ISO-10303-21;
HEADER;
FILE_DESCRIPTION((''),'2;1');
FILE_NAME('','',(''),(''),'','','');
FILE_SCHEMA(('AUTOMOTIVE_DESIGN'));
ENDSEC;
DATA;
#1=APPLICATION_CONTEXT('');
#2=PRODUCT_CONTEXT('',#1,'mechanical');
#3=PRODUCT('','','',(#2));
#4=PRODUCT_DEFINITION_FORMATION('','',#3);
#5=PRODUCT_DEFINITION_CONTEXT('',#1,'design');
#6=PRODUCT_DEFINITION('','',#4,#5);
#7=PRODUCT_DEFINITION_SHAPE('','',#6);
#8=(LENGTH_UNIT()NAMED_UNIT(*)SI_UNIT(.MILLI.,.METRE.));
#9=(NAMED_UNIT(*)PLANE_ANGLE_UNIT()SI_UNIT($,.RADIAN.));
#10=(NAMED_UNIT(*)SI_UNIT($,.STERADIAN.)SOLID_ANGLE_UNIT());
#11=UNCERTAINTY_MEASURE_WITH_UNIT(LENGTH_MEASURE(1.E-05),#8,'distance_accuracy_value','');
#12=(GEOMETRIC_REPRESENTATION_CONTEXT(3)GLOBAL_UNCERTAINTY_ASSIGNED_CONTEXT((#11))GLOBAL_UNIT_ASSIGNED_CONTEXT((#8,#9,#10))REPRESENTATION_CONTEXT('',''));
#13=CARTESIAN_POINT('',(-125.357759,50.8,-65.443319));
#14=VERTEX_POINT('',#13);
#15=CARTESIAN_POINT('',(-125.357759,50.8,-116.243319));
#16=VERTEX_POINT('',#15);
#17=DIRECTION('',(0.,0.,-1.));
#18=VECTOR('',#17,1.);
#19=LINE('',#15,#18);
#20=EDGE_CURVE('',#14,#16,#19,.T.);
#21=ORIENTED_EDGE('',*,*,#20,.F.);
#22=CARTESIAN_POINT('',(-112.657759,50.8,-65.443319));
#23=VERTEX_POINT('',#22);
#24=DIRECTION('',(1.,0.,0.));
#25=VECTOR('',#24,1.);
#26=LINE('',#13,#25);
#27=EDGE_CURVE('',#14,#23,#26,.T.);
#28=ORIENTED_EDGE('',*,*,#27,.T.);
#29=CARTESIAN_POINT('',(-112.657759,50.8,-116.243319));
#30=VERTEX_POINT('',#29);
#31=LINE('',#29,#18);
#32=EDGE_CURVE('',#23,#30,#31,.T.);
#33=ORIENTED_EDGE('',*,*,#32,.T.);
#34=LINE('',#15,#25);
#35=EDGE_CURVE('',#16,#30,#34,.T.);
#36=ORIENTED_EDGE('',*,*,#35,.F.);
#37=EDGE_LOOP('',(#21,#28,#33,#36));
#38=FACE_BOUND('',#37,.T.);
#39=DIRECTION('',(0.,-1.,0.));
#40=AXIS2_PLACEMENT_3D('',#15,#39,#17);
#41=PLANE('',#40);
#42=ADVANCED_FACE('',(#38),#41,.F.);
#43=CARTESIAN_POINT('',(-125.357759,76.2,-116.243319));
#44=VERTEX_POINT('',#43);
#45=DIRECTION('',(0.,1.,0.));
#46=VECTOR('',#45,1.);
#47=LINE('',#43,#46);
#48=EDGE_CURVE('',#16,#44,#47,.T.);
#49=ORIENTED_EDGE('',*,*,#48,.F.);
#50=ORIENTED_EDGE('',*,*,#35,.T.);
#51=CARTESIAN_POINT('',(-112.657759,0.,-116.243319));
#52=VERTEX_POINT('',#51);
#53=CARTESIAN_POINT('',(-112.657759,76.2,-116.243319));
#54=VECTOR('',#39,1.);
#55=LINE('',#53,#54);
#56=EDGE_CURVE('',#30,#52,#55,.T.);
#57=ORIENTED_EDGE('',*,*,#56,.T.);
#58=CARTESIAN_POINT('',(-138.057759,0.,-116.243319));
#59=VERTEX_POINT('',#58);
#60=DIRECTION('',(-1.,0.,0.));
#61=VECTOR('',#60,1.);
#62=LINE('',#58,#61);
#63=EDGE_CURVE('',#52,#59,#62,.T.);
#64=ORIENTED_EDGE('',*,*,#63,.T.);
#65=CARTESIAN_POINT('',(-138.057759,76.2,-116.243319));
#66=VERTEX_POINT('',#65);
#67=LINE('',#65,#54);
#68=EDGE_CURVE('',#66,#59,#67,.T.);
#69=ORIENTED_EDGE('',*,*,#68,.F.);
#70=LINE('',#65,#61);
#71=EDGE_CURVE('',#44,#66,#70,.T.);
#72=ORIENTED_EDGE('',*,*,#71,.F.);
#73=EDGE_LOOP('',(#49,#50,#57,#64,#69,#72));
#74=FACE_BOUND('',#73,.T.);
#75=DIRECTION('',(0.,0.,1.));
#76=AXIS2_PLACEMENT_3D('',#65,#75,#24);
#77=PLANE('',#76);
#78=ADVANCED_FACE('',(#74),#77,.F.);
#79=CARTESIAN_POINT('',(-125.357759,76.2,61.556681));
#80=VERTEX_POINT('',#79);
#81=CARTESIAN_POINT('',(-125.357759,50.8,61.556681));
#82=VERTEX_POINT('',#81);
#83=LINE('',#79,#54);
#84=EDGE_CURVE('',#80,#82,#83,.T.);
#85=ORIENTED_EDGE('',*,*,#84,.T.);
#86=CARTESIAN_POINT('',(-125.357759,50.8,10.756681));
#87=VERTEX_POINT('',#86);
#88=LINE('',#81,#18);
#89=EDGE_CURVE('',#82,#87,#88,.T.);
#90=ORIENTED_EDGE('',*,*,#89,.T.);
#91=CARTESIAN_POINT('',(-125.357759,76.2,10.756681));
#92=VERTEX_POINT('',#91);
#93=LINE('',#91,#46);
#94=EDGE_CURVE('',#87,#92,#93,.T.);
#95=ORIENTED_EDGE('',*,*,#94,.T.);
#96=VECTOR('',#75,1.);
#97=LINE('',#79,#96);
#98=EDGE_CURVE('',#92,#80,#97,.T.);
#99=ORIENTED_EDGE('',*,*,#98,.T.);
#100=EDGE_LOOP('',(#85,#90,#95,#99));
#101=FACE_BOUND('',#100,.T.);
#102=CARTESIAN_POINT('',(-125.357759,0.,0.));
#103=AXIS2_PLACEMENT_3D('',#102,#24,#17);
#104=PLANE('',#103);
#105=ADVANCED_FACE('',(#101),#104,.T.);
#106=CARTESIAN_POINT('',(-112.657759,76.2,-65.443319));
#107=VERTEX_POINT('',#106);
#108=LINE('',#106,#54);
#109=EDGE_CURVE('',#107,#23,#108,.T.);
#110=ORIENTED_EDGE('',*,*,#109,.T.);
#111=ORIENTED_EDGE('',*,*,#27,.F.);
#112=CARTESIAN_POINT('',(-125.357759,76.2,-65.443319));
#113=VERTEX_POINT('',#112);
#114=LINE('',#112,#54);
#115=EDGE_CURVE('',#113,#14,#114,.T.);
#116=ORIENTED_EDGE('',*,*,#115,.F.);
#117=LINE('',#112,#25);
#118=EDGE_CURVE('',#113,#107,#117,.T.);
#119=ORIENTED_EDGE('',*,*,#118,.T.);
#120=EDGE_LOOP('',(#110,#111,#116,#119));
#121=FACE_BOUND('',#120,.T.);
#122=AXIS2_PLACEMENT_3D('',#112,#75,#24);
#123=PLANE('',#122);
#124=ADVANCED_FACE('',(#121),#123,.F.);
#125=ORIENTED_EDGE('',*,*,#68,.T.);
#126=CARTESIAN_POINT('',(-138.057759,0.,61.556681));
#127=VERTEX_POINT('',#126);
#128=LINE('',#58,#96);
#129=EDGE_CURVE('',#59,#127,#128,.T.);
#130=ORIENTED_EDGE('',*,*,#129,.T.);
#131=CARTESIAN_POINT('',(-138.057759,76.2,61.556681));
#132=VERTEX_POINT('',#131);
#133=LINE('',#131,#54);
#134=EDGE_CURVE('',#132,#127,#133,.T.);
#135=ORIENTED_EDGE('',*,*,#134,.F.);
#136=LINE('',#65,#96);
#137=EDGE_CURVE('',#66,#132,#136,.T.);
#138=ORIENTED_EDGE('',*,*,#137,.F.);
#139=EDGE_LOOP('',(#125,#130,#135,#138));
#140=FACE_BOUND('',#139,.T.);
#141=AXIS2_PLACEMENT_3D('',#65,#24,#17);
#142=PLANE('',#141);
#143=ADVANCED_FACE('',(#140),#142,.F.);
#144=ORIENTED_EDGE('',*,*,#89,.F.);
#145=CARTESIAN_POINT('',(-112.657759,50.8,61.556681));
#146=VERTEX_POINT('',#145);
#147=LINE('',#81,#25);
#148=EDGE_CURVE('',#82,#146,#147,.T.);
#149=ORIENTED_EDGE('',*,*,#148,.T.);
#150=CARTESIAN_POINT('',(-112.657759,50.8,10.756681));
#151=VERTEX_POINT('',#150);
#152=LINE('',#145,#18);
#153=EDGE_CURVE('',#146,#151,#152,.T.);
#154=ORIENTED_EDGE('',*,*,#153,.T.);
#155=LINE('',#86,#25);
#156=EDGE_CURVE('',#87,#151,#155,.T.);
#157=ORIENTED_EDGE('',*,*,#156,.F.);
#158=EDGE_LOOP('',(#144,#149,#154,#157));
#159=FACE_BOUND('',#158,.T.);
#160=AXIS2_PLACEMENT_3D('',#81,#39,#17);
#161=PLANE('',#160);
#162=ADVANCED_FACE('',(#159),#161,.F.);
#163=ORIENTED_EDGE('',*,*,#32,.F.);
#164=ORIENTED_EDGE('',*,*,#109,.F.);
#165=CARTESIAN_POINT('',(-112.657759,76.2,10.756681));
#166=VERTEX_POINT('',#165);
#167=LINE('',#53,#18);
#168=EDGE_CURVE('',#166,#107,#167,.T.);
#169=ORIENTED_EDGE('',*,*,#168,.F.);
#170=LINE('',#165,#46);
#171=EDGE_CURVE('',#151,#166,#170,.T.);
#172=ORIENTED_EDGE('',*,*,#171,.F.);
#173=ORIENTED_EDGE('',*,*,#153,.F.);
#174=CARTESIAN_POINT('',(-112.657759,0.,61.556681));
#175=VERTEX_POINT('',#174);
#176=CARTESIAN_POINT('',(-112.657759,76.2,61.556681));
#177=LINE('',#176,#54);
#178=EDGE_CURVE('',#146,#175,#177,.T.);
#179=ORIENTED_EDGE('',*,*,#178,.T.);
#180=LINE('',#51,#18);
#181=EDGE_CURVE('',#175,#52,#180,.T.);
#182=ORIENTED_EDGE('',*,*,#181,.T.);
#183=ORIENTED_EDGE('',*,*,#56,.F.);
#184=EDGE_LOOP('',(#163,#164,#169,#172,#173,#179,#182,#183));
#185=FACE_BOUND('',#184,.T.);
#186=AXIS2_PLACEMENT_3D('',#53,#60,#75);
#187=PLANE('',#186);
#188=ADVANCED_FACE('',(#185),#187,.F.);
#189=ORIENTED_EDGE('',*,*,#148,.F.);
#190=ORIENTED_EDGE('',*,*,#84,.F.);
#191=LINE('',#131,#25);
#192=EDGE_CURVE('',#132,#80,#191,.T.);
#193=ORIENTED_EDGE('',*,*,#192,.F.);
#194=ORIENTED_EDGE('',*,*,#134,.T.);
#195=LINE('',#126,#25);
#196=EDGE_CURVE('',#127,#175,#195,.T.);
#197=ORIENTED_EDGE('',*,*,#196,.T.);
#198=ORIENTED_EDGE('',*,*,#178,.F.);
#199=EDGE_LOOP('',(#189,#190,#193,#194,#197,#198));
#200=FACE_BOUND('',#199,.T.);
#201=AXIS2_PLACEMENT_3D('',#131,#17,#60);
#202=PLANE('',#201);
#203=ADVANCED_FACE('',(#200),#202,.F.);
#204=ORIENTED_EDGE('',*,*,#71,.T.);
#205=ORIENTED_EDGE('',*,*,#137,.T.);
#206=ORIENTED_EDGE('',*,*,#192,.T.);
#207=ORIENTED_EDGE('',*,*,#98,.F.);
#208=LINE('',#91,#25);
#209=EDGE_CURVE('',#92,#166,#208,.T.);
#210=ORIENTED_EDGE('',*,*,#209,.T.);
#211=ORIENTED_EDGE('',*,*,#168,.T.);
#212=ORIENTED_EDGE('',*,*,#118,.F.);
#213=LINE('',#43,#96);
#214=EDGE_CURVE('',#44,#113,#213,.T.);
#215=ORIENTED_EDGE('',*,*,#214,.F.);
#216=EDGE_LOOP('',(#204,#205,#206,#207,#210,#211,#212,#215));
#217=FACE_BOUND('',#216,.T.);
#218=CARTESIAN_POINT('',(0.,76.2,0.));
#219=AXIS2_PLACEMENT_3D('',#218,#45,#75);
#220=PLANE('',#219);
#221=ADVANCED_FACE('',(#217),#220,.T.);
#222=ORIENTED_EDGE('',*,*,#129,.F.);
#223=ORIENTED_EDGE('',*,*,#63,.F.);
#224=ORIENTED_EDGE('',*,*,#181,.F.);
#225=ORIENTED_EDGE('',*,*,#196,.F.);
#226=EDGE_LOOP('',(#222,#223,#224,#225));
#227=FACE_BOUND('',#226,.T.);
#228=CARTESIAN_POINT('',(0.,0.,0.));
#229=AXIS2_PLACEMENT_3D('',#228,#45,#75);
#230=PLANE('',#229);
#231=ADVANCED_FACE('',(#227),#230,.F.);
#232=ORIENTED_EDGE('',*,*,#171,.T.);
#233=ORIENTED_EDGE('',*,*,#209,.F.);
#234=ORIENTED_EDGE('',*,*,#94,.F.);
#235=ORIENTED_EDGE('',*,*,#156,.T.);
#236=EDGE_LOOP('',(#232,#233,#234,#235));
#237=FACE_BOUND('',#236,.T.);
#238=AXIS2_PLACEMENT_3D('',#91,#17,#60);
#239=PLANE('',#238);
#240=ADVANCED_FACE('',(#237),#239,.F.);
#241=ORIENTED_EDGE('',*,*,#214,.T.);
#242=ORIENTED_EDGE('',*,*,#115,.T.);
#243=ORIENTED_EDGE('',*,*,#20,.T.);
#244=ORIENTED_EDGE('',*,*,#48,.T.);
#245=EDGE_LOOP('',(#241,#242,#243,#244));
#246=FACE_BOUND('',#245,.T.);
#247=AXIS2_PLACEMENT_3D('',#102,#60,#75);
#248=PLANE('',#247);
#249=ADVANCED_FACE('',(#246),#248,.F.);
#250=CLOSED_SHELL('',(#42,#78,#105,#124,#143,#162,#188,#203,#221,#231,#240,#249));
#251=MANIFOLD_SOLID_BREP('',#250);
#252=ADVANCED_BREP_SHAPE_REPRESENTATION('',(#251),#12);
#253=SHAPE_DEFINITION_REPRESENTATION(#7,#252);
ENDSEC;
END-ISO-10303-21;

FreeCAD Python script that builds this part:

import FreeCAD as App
import Part
import Sketcher

V = App.Vector
Q = App.Units.Quantity


def add_polygon(sketch, points):
    """Adds a closed chain of lines whose ends are joined by coincident constraints."""
    first, n = sketch.GeometryCount, len(points)
    for a, b in zip(points, points[1:] + points[:1]):
        sketch.addGeometry(Part.LineSegment(App.Vector(*a, 0), App.Vector(*b, 0)), False)
    for i in range(n):
        sketch.addConstraint(Sketcher.Constraint("Coincident", first + i, 2, first + (i + 1) % n, 1))

doc = App.newDocument("Part")
params = doc.addObject("Spreadsheet::Sheet", "Params")
for row, (alias, value) in enumerate([
    ("sketch1_width", "1 in"),
    ("sketch1_height", "7 in"),
    ("pad1_length", "3 in"),
    ("sketch2_width", "1 in"),
    ("sketch2_height", "2 in"),
    ("pocket1_length", "0.5 in"),
], start=1):
    params.set(f"A{row}", alias)
    params.set(f"B{row}", "=" + value)
    params.setAlias(f"B{row}", alias)

body = doc.addObject("PartDesign::Body", "Body")

# Sketch on XZ plane
sketch1 = body.newObject("Sketcher::SketchObject", "Sketch")
sketch1.AttachmentSupport = (doc.getObject("XZ_Plane"), [""])
sketch1.MapMode = "FlatFace"
add_polygon(sketch1, [(-138.057759, -116.243319), (-138.057759, 61.556681), (-112.657759, 61.556681), (-112.657759, -116.243319)])  # lines 0-3
sketch1.addConstraint(Sketcher.Constraint("Vertical", 0))
sketch1.addConstraint(Sketcher.Constraint("Horizontal", 1))
sketch1.addConstraint(Sketcher.Constraint("Vertical", 2))
sketch1.addConstraint(Sketcher.Constraint("Horizontal", 3))
sketch1.addConstraint(Sketcher.Constraint("DistanceX", 1, 1, 1, 2, Q("1 in")))
sketch1.addConstraint(Sketcher.Constraint("DistanceY", 0, 1, 0, 2, Q("7 in")))
sketch1.addConstraint(Sketcher.Constraint("DistanceX", 0, 2, -1, 1, 138.057759))
sketch1.addConstraint(Sketcher.Constraint("DistanceY", -1, 1, 0, 2, 61.556681))
sketch1.setExpression("Constraints[8]", "Params.sketch1_width")
sketch1.setExpression("Constraints[9]", "Params.sketch1_height")
pad1 = body.newObject("PartDesign::Pad", "Pad")
pad1.Profile = sketch1
pad1.setExpression("Length", "Params.pad1_length")
pad1.Reversed = True

# Sketch on YZ plane
sketch2 = body.newObject("Sketcher::SketchObject", "Sketch001")
sketch2.AttachmentSupport = (doc.getObject("YZ_Plane"), [""])
sketch2.MapMode = "FlatFace"
sketch2.AttachmentOffset = App.Placement(V(0, 0, -112.657759), App.Rotation())
add_polygon(sketch2, [(76.2, -65.443319), (50.8, -65.443319), (50.8, -116.243319), (76.2, -116.243319)])  # lines 0-3
add_polygon(sketch2, [(76.2, 61.556681), (50.8, 61.556681), (50.8, 10.756681), (76.2, 10.756681)])  # lines 4-7
sketch2.addConstraint(Sketcher.Constraint("Horizontal", 0))
sketch2.addConstraint(Sketcher.Constraint("Vertical", 1))
sketch2.addConstraint(Sketcher.Constraint("Horizontal", 2))
sketch2.addConstraint(Sketcher.Constraint("Vertical", 3))
sketch2.addConstraint(Sketcher.Constraint("Horizontal", 4))
sketch2.addConstraint(Sketcher.Constraint("Vertical", 5))
sketch2.addConstraint(Sketcher.Constraint("Horizontal", 6))
sketch2.addConstraint(Sketcher.Constraint("Vertical", 7))
sketch2.addConstraint(Sketcher.Constraint("Vertical", 1, 2, 4, 2))
sketch2.addConstraint(Sketcher.Constraint("Vertical", 3, 2, 6, 2))
sketch2.addConstraint(Sketcher.Constraint("Equal", 3, 5))
sketch2.addConstraint(Sketcher.Constraint("DistanceX", 0, 2, 0, 1, Q("1 in")))
sketch2.addConstraint(Sketcher.Constraint("DistanceY", 1, 2, 1, 1, Q("2 in")))
sketch2.addConstraint(Sketcher.Constraint("DistanceX", -1, 1, 0, 2, Q("2 in")))
sketch2.addConstraint(Sketcher.Constraint("DistanceY", 0, 2, 4, 2, Q("5 in")))
sketch2.addConstraint(Sketcher.Constraint("DistanceY", 0, 2, -1, 1, 65.443319))
sketch2.setExpression("Constraints[19]", "Params.sketch2_width")
sketch2.setExpression("Constraints[20]", "Params.sketch2_height")
pocket1 = body.newObject("PartDesign::Pocket", "Pocket")
pocket1.Profile = sketch2
pocket1.setExpression("Length", "Params.pocket1_length")

doc.recompute()
